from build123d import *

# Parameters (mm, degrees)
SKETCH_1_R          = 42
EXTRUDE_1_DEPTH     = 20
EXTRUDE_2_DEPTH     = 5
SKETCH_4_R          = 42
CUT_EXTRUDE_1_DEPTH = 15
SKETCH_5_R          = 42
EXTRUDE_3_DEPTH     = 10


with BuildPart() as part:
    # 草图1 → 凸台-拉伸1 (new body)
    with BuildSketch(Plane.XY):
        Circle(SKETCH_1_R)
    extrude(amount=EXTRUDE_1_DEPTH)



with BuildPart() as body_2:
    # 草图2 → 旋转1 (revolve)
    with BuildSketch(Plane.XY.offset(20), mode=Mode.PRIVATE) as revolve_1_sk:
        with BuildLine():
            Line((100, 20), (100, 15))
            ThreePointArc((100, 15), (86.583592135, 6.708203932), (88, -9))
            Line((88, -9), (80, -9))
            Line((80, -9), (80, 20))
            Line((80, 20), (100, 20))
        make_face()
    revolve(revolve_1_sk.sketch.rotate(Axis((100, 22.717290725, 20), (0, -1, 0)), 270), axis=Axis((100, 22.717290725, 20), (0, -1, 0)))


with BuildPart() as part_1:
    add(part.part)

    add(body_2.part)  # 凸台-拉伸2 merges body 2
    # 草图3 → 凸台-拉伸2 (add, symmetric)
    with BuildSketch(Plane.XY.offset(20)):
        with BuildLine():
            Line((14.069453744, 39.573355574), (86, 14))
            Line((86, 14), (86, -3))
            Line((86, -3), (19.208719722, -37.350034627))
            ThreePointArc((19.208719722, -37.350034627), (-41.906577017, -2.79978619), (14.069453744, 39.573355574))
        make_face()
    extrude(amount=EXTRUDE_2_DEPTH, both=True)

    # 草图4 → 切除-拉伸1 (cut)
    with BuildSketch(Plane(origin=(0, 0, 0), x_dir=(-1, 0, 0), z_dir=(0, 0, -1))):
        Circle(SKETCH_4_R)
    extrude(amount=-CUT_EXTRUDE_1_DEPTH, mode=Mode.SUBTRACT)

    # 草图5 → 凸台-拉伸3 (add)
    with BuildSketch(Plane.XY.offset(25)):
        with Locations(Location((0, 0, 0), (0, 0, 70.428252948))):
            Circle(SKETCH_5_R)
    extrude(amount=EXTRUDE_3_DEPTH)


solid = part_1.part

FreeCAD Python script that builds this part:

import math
import FreeCAD as App
import Part
import Sketcher
from FreeCAD import Vector
Q = App.Units.Quantity

doc = App.newDocument("Part")
body = doc.addObject("PartDesign::Body", "Body")

sketch1 = doc.addObject("Sketcher::SketchObject", "Sketch")
body.addObject(sketch1)
sketch1.AttachmentSupport = (doc.XY_Plane, [""])
sketch1.MapMode = "FlatFace"
sketch1.addGeometry(Part.Circle(Vector(0, 0, 0), Vector(0, 0, 1), 42), False)
sketch1.addConstraint(Sketcher.Constraint("Coincident", 0, 3, -1, 1))
sketch1.addConstraint(Sketcher.Constraint("Diameter", 0, Q("84 mm")))
pad1 = doc.addObject("PartDesign::Pad", "Pad")
body.addObject(pad1)
pad1.Profile = sketch1
pad1.Length = 20
body2 = doc.addObject("PartDesign::Body", "Body001")

sketch2 = doc.addObject("Sketcher::SketchObject", "Sketch001")
body2.addObject(sketch2)
sketch2.AttachmentSupport = (doc.getObject("XY_Plane001"), [""])
sketch2.MapMode = "FlatFace"
sketch2.AttachmentOffset = App.Placement(Vector(0, 0, 20), App.Rotation())
sketch2.addGeometry(Part.LineSegment(Vector(100, 15, 0), Vector(100, 20, 0)), False)
sketch2.addGeometry(Part.LineSegment(Vector(100, 20, 0), Vector(80, 20, 0)), False)
sketch2.addGeometry(Part.LineSegment(Vector(80, 20, 0), Vector(80, -9, 0)), False)
sketch2.addGeometry(Part.LineSegment(Vector(80, -9, 0), Vector(88, -9, 0)), False)
sketch2.addGeometry(Part.ArcOfCircle(Part.Circle(Vector(100, 0, 0), Vector(0, 0, 1), 15), math.radians(90), math.radians(217)), False)
sketch2.addGeometry(Part.LineSegment(Vector(100, 20, 0), Vector(100, -9, 0)), True)
sketch2.addConstraint(Sketcher.Constraint("Coincident", 0, 2, 1, 1))
sketch2.addConstraint(Sketcher.Constraint("Coincident", 1, 2, 2, 1))
sketch2.addConstraint(Sketcher.Constraint("Coincident", 2, 2, 3, 1))
sketch2.addConstraint(Sketcher.Constraint("Coincident", 3, 2, 4, 2))
sketch2.addConstraint(Sketcher.Constraint("Coincident", 4, 1, 0, 1))
sketch2.addConstraint(Sketcher.Constraint("Vertical", 0))
sketch2.addConstraint(Sketcher.Constraint("Horizontal", 1))
sketch2.addConstraint(Sketcher.Constraint("Vertical", 2))
sketch2.addConstraint(Sketcher.Constraint("Horizontal", 3))
sketch2.addConstraint(Sketcher.Constraint("Vertical", 5))
sketch2.addConstraint(Sketcher.Constraint("Coincident", 5, 1, 0, 2))
sketch2.addConstraint(Sketcher.Constraint("PointOnObject", 4, 3, -1))
sketch2.addConstraint(Sketcher.Constraint("Horizontal", 3, 2, 5, 2))
sketch2.addConstraint(Sketcher.Constraint("Vertical", 4, 3, 0, 2))
sketch2.addConstraint(Sketcher.Constraint("Radius", 4, Q("15 mm")))
sketch2.addConstraint(Sketcher.Constraint("DistanceX", 1, 2, 1, 1, Q("20 mm")))
sketch2.addConstraint(Sketcher.Constraint("DistanceX", 3, 1, 3, 2, Q("8 mm")))
sketch2.addConstraint(Sketcher.Constraint("DistanceY", 0, 1, 0, 2, Q("5 mm")))
sketch2.addConstraint(Sketcher.Constraint("DistanceX", -1, 1, 4, 3, Q("100 mm")))
revolution = doc.addObject("PartDesign::Revolution", "Revolution")
body2.addObject(revolution)
revolution.Profile = sketch2
revolution.ReferenceAxis = (sketch2, ["Axis0"])
revolution.Angle = 360
body.AllowCompound = True
doc.recompute()

boolean = doc.addObject("PartDesign::Boolean", "Boolean")
body.addObject(boolean)
boolean.Type = "Fuse"
boolean.addObjects([body2])

sketch3 = doc.addObject("Sketcher::SketchObject", "Sketch002")
body.addObject(sketch3)
sketch3.AttachmentSupport = (doc.XY_Plane, [""])
sketch3.MapMode = "FlatFace"
sketch3.AttachmentOffset = App.Placement(Vector(0, 0, 20), App.Rotation())
sketch3.addGeometry(Part.LineSegment(Vector(86, 14, 0), Vector(14, 40, 0)), False)
sketch3.addGeometry(Part.ArcOfCircle(Part.Circle(Vector(0, 0, 0), Vector(0, 0, 1), 42), math.radians(70), math.radians(297)), False)
sketch3.addGeometry(Part.LineSegment(Vector(19, -37, 0), Vector(86, -3, 0)), False)
sketch3.addGeometry(Part.LineSegment(Vector(86, -3, 0), Vector(86, 14, 0)), False)
sketch3.addConstraint(Sketcher.Constraint("Tangent", 0, 2, 1, 1))
sketch3.addConstraint(Sketcher.Constraint("Tangent", 1, 2, 2, 1))
sketch3.addConstraint(Sketcher.Constraint("Coincident", 2, 2, 3, 1))
sketch3.addConstraint(Sketcher.Constraint("Coincident", 3, 2, 0, 1))
sketch3.addConstraint(Sketcher.Constraint("Vertical", 3))
sketch3.addConstraint(Sketcher.Constraint("Coincident", 1, 3, -1, 1))
sketch3.addConstraint(Sketcher.Constraint("Radius", 1, Q("42 mm")))
sketch3.addConstraint(Sketcher.Constraint("DistanceY", 3, 1, 3, 2, Q("17 mm")))
sketch3.addConstraint(Sketcher.Constraint("DistanceX", -1, 1, 2, 2, Q("86 mm")))
sketch3.addConstraint(Sketcher.Constraint("DistanceY", 2, 2, -1, 1, Q("3 mm")))
pad2 = doc.addObject("PartDesign::Pad", "Pad001")
body.addObject(pad2)
pad2.Profile = sketch3
pad2.Length = 10
pad2.Midplane = True

sketch4 = doc.addObject("Sketcher::SketchObject", "Sketch003")
body.addObject(sketch4)
sketch4.AttachmentSupport = (doc.XY_Plane, [""])
sketch4.MapMode = "FlatFace"
sketch4.addGeometry(Part.Circle(Vector(0, 0, 0), Vector(0, 0, 1), 42), False)
sketch4.addConstraint(Sketcher.Constraint("Coincident", 0, 3, -1, 1))
sketch4.addConstraint(Sketcher.Constraint("Diameter", 0, Q("84 mm")))
pocket1 = doc.addObject("PartDesign::Pocket", "Pocket")
body.addObject(pocket1)
pocket1.Profile = sketch4
pocket1.Length = 15
pocket1.Reversed = True

sketch5 = doc.addObject("Sketcher::SketchObject", "Sketch004")
body.addObject(sketch5)
sketch5.AttachmentSupport = (doc.XY_Plane, [""])
sketch5.MapMode = "FlatFace"
sketch5.AttachmentOffset = App.Placement(Vector(0, 0, 25), App.Rotation())
sketch5.addGeometry(Part.Circle(Vector(0, 0, 0), Vector(0, 0, 1), 42), False)
sketch5.addConstraint(Sketcher.Constraint("Coincident", 0, 3, -1, 1))
sketch5.addConstraint(Sketcher.Constraint("Diameter", 0, Q("84 mm")))
pad3 = doc.addObject("PartDesign::Pad", "Pad002")
body.addObject(pad3)
pad3.Profile = sketch5
pad3.Length = 10

doc.recompute()
